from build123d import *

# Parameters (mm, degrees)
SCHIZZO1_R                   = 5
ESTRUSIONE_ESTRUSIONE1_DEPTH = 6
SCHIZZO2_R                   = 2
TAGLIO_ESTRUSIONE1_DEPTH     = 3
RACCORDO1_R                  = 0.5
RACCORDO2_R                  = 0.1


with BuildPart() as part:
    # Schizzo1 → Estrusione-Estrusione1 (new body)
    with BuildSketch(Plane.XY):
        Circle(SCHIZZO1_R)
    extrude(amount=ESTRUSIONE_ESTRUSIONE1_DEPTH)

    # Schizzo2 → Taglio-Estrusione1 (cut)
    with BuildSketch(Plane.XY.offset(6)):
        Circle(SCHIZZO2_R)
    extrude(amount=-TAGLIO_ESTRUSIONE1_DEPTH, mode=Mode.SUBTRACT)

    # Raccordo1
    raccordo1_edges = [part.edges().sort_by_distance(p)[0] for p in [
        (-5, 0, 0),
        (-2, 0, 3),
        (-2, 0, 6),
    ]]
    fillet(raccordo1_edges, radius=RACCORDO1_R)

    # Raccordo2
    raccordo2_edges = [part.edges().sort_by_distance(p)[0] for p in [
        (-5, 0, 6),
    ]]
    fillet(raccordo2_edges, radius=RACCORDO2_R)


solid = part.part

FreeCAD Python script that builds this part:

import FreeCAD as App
import Part
import Sketcher
from FreeCAD import Vector


def edges_at(feature, points):
    """Names of the edges that pass closest to the given points."""
    edges = feature.Shape.Edges
    near = lambda p: min(range(len(edges)), key=lambda i: edges[i].distToShape(Part.Vertex(*p))[0])
    return sorted({f"Edge{near(p) + 1}" for p in points})

doc = App.newDocument("Part")
body = doc.addObject("PartDesign::Body", "Body")

# Sketch on XY plane
sketch1 = body.newObject("Sketcher::SketchObject", "Sketch")
sketch1.AttachmentSupport = (doc.getObject("XY_Plane"), [""])
sketch1.MapMode = "FlatFace"
sketch1.addGeometry(Part.Circle(Vector(0, 0, 0), Vector(0, 0, 1), 5), False)
sketch1.addConstraint([
    Sketcher.Constraint("Coincident", 0, 3, -1, 1),
    Sketcher.Constraint("Diameter", 0, 10.0),
])
pad1 = body.newObject("PartDesign::Pad", "Pad")
pad1.Profile = sketch1
pad1.Length = 6

# Sketch on XY plane
sketch2 = body.newObject("Sketcher::SketchObject", "Sketch001")
sketch2.AttachmentSupport = (doc.getObject("XY_Plane"), [""])
sketch2.MapMode = "FlatFace"
sketch2.AttachmentOffset = App.Placement(Vector(0, 0, 6), App.Rotation())
sketch2.addGeometry(Part.Circle(Vector(0, 0, 0), Vector(0, 0, 1), 2), False)
sketch2.addConstraint([
    Sketcher.Constraint("Coincident", 0, 3, -1, 1),
    Sketcher.Constraint("Diameter", 0, 4.0),
])
pocket1 = body.newObject("PartDesign::Pocket", "Pocket")
pocket1.Profile = sketch2
pocket1.Length = 3
doc.recompute()

fillet = body.newObject("PartDesign::Fillet", "Fillet")
fillet.Base = (pocket1, edges_at(pocket1, [(-5, 0, 0), (-2, 0, 3), (-2, 0, 6)]))
fillet.Radius = 0.5
doc.recompute()

fillet2 = body.newObject("PartDesign::Fillet", "Fillet001")
fillet2.Base = (fillet, edges_at(fillet, [(-5, 0, 6)]))
fillet2.Radius = 0.1

doc.recompute()
